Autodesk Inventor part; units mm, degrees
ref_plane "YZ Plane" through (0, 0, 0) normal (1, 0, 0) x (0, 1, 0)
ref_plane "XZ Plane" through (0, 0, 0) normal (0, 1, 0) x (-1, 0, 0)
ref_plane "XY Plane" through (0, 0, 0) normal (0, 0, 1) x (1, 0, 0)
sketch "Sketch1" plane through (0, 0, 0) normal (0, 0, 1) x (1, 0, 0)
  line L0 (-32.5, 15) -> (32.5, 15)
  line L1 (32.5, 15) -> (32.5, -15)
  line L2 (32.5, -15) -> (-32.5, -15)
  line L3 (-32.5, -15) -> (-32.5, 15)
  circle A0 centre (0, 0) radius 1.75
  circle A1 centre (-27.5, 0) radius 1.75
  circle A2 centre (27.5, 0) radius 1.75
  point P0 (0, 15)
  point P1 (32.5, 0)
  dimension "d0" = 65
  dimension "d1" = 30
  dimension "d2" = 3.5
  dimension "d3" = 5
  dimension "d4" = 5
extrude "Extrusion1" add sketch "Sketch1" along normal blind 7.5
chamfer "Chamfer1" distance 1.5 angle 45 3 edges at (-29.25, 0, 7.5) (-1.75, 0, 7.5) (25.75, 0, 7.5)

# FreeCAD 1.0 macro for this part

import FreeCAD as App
import Part
import Sketcher

V = App.Vector
Q = App.Units.Quantity


def edges_at(feature, points):
    """Names of the edges that pass closest to the given points."""
    edges = feature.Shape.Edges
    near = lambda p: min(range(len(edges)), key=lambda i: edges[i].distToShape(Part.Vertex(*p))[0])
    return sorted({f"Edge{near(p) + 1}" for p in points})

doc = App.newDocument("Part")
body = doc.addObject("PartDesign::Body", "Body")

# Sketch on XY plane
sketch1 = body.newObject("Sketcher::SketchObject", "Sketch")
sketch1.AttachmentSupport = (doc.getObject("XY_Plane"), [""])
sketch1.MapMode = "FlatFace"
sketch1.addGeometry(Part.LineSegment(V(32.5, 15, 0), V(-32.5, 15, 0)), False)
sketch1.addGeometry(Part.LineSegment(V(-32.5, 15, 0), V(-32.5, -15, 0)), False)
sketch1.addGeometry(Part.LineSegment(V(-32.5, -15, 0), V(32.5, -15, 0)), False)
sketch1.addGeometry(Part.LineSegment(V(32.5, -15, 0), V(32.5, 15, 0)), False)
sketch1.addGeometry(Part.Circle(V(-27.5, 0, 0), V(0, 0, 1), 1.75), False)
sketch1.addGeometry(Part.Circle(V(0, 0, 0), V(0, 0, 1), 1.75), False)
sketch1.addGeometry(Part.Circle(V(27.5, 0, 0), V(0, 0, 1), 1.75), False)
sketch1.addConstraint(Sketcher.Constraint("Coincident", 0, 2, 1, 1))
sketch1.addConstraint(Sketcher.Constraint("Coincident", 1, 2, 2, 1))
sketch1.addConstraint(Sketcher.Constraint("Coincident", 2, 2, 3, 1))
sketch1.addConstraint(Sketcher.Constraint("Coincident", 3, 2, 0, 1))
sketch1.addConstraint(Sketcher.Constraint("Horizontal", 0))
sketch1.addConstraint(Sketcher.Constraint("Vertical", 1))
sketch1.addConstraint(Sketcher.Constraint("Horizontal", 2))
sketch1.addConstraint(Sketcher.Constraint("Vertical", 3))
sketch1.addConstraint(Sketcher.Constraint("Coincident", 5, 3, -1, 1))
sketch1.addConstraint(Sketcher.Constraint("Equal", 4, 5))
sketch1.addConstraint(Sketcher.Constraint("Equal", 5, 6))
sketch1.addConstraint(Sketcher.Constraint("Symmetric", 4, 3, 6, 3, -1, 1))
sketch1.addConstraint(Sketcher.Constraint("Symmetric", 0, 2, 2, 2, -1, 1))
sketch1.addConstraint(Sketcher.Constraint("PointOnObject", 4, 3, -1))
sketch1.addConstraint(Sketcher.Constraint("Diameter", 4, Q("3.5 mm")))
sketch1.addConstraint(Sketcher.Constraint("DistanceX", 0, 2, 0, 1, Q("65 mm")))
sketch1.addConstraint(Sketcher.Constraint("DistanceY", 1, 2, 1, 1, Q("30 mm")))
sketch1.addConstraint(Sketcher.Constraint("DistanceX", 0, 2, 4, 3, Q("5 mm")))
pad1 = body.newObject("PartDesign::Pad", "Pad")
pad1.Profile = sketch1
pad1.Length = 7.5
doc.recompute()

chamfer = body.newObject("PartDesign::Chamfer", "Chamfer")
chamfer.Base = (pad1, edges_at(pad1, [(-29.25, 0, 7.5), (-1.75, 0, 7.5), (25.75, 0, 7.5)]))
chamfer.Size = 1.5

doc.recompute()
